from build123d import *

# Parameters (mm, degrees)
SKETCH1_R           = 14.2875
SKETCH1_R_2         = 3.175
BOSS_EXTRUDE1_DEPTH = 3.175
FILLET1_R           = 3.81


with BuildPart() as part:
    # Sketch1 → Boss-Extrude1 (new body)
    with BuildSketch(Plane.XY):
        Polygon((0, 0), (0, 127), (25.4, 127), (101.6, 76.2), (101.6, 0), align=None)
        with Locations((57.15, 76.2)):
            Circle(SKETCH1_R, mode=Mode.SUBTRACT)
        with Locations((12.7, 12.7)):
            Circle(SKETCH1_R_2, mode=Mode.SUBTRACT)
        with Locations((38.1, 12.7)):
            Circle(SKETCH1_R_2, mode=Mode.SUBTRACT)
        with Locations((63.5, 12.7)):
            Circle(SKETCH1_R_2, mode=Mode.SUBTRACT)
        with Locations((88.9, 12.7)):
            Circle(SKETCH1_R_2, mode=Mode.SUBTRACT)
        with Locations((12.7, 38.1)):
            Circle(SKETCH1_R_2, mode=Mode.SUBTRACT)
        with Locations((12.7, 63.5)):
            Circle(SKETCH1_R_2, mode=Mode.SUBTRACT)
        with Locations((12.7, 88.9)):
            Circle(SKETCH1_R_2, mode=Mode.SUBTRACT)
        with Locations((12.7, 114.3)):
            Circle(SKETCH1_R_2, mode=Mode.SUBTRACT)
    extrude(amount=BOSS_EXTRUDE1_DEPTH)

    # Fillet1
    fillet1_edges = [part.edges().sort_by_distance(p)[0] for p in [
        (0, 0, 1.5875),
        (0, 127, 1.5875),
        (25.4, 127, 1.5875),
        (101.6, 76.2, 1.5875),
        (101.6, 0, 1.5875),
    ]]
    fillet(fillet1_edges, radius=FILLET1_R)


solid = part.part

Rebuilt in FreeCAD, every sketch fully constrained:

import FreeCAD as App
import Part
import Sketcher
from FreeCAD import Vector
Q = App.Units.Quantity


def edges_at(feature, points):
    """Names of the edges that pass closest to the given points."""
    edges = feature.Shape.Edges
    near = lambda p: min(range(len(edges)), key=lambda i: edges[i].distToShape(Part.Vertex(*p))[0])
    return sorted({f"Edge{near(p) + 1}" for p in points})


def add_polygon(sketch, points):
    """Adds a closed chain of lines whose ends are joined by coincident constraints."""
    first, n = sketch.GeometryCount, len(points)
    for a, b in zip(points, points[1:] + points[:1]):
        sketch.addGeometry(Part.LineSegment(App.Vector(*a, 0), App.Vector(*b, 0)), False)
    for i in range(n):
        sketch.addConstraint(Sketcher.Constraint("Coincident", first + i, 2, first + (i + 1) % n, 1))

doc = App.newDocument("Part")
params = doc.addObject("Spreadsheet::Sheet", "Params")
for row, (alias, value) in enumerate([
    ("sketch1_diameter", "0.25 in"),
    ("sketch1_width", "4 in"),
    ("sketch1_width2", "1 in"),
    ("sketch1_height", "5 in"),
    ("sketch1_height2", "3 in"),
    ("pad1_length", "0.125 in"),
    ("fillet_radius", "0.15 in"),
], start=1):
    params.set(f"A{row}", alias)
    params.set(f"B{row}", "=" + value)
    params.setAlias(f"B{row}", alias)

body = doc.addObject("PartDesign::Body", "Body")

sketch1 = body.newObject("Sketcher::SketchObject", "Sketch")
sketch1.AttachmentSupport = (doc.getObject("XY_Plane"), [""])
sketch1.MapMode = "FlatFace"
add_polygon(sketch1, [(0, 127), (0, 0), (101.6, 0), (101.6, 76.2), (25.4, 127)])
sketch1.addGeometry(Part.Circle(Vector(88.9, 12.7, 0), Vector(0, 0, 1), 3.2), False)
sketch1.addGeometry(Part.Circle(Vector(63.5, 12.7, 0), Vector(0, 0, 1), 3.2), False)
sketch1.addGeometry(Part.Circle(Vector(38.1, 12.7, 0), Vector(0, 0, 1), 3.2), False)
sketch1.addGeometry(Part.Circle(Vector(12.7, 12.7, 0), Vector(0, 0, 1), 3.2), False)
sketch1.addGeometry(Part.Circle(Vector(12.7, 38.1, 0), Vector(0, 0, 1), 3.2), False)
sketch1.addGeometry(Part.Circle(Vector(57.1, 76.2, 0), Vector(0, 0, 1), 14.3), False)
sketch1.addGeometry(Part.Circle(Vector(12.7, 63.5, 0), Vector(0, 0, 1), 3.2), False)
sketch1.addGeometry(Part.Circle(Vector(12.7, 88.9, 0), Vector(0, 0, 1), 3.2), False)
sketch1.addGeometry(Part.Circle(Vector(12.7, 114.3, 0), Vector(0, 0, 1), 3.2), False)
sketch1.addConstraint(Sketcher.Constraint("Vertical", 0))
sketch1.addConstraint(Sketcher.Constraint("Horizontal", 1))
sketch1.addConstraint(Sketcher.Constraint("Vertical", 2))
sketch1.addConstraint(Sketcher.Constraint("Horizontal", 4))
sketch1.addConstraint(Sketcher.Constraint("Coincident", 0, 2, -1, 1))
sketch1.addConstraint(Sketcher.Constraint("Equal", 5, 6))
sketch1.addConstraint(Sketcher.Constraint("Equal", 6, 7))
sketch1.addConstraint(Sketcher.Constraint("Equal", 7, 8))
sketch1.addConstraint(Sketcher.Constraint("Equal", 8, 9))
sketch1.addConstraint(Sketcher.Constraint("Equal", 9, 11))
sketch1.addConstraint(Sketcher.Constraint("Equal", 11, 12))
sketch1.addConstraint(Sketcher.Constraint("Equal", 12, 13))
sketch1.addConstraint(Sketcher.Constraint("Horizontal", 5, 3, 6, 3))
sketch1.addConstraint(Sketcher.Constraint("Horizontal", 6, 3, 7, 3))
sketch1.addConstraint(Sketcher.Constraint("Horizontal", 7, 3, 8, 3))
sketch1.addConstraint(Sketcher.Constraint("Horizontal", 10, 3, 2, 2))
sketch1.addConstraint(Sketcher.Constraint("Vertical", 8, 3, 9, 3))
sketch1.addConstraint(Sketcher.Constraint("Vertical", 9, 3, 11, 3))
sketch1.addConstraint(Sketcher.Constraint("Vertical", 11, 3, 12, 3))
sketch1.addConstraint(Sketcher.Constraint("Vertical", 12, 3, 13, 3))
sketch1.addConstraint(Sketcher.Constraint("Diameter", 5, Q("0.25 in")))
sketch1.addConstraint(Sketcher.Constraint("DistanceX", 1, 1, 1, 2, Q("4 in")))
sketch1.addConstraint(Sketcher.Constraint("DistanceX", 4, 2, 4, 1, Q("1 in")))
sketch1.addConstraint(Sketcher.Constraint("DistanceY", 0, 2, 0, 1, Q("5 in")))
sketch1.addConstraint(Sketcher.Constraint("DistanceY", 2, 1, 2, 2, Q("3 in")))
sketch1.addConstraint(Sketcher.Constraint("Diameter", 10, Q("1.125 in")))
sketch1.addConstraint(Sketcher.Constraint("DistanceX", 6, 3, 5, 3, Q("1 in")))
sketch1.addConstraint(Sketcher.Constraint("DistanceX", 7, 3, 6, 3, Q("1 in")))
sketch1.addConstraint(Sketcher.Constraint("DistanceX", 8, 3, 7, 3, Q("1 in")))
sketch1.addConstraint(Sketcher.Constraint("DistanceY", 8, 3, 9, 3, Q("1 in")))
sketch1.addConstraint(Sketcher.Constraint("DistanceY", 9, 3, 11, 3, Q("1 in")))
sketch1.addConstraint(Sketcher.Constraint("DistanceY", 11, 3, 12, 3, Q("1 in")))
sketch1.addConstraint(Sketcher.Constraint("DistanceY", 12, 3, 13, 3, Q("1 in")))
sketch1.addConstraint(Sketcher.Constraint("DistanceX", -1, 1, 5, 3, Q("3.5 in")))
sketch1.addConstraint(Sketcher.Constraint("DistanceY", -1, 1, 5, 3, Q("0.5 in")))
sketch1.addConstraint(Sketcher.Constraint("DistanceX", -1, 1, 10, 3, Q("2.25 in")))
sketch1.setExpression("Constraints[25]", "Params.sketch1_diameter")
sketch1.setExpression("Constraints[26]", "Params.sketch1_width")
sketch1.setExpression("Constraints[27]", "Params.sketch1_width2")
sketch1.setExpression("Constraints[28]", "Params.sketch1_height")
sketch1.setExpression("Constraints[29]", "Params.sketch1_height2")
pad1 = body.newObject("PartDesign::Pad", "Pad")
pad1.Profile = sketch1
pad1.setExpression("Length", "Params.pad1_length")
doc.recompute()

fillet = body.newObject("PartDesign::Fillet", "Fillet")
fillet.Base = (pad1, edges_at(pad1, [
    (0, 0, 1.587),
    (0, 127, 1.587),
    (25.4, 127, 1.587),
    (101.6, 76.2, 1.587),
    (101.6, 0, 1.587),
]))
fillet.setExpression("Radius", "Params.fillet_radius")

doc.recompute()
